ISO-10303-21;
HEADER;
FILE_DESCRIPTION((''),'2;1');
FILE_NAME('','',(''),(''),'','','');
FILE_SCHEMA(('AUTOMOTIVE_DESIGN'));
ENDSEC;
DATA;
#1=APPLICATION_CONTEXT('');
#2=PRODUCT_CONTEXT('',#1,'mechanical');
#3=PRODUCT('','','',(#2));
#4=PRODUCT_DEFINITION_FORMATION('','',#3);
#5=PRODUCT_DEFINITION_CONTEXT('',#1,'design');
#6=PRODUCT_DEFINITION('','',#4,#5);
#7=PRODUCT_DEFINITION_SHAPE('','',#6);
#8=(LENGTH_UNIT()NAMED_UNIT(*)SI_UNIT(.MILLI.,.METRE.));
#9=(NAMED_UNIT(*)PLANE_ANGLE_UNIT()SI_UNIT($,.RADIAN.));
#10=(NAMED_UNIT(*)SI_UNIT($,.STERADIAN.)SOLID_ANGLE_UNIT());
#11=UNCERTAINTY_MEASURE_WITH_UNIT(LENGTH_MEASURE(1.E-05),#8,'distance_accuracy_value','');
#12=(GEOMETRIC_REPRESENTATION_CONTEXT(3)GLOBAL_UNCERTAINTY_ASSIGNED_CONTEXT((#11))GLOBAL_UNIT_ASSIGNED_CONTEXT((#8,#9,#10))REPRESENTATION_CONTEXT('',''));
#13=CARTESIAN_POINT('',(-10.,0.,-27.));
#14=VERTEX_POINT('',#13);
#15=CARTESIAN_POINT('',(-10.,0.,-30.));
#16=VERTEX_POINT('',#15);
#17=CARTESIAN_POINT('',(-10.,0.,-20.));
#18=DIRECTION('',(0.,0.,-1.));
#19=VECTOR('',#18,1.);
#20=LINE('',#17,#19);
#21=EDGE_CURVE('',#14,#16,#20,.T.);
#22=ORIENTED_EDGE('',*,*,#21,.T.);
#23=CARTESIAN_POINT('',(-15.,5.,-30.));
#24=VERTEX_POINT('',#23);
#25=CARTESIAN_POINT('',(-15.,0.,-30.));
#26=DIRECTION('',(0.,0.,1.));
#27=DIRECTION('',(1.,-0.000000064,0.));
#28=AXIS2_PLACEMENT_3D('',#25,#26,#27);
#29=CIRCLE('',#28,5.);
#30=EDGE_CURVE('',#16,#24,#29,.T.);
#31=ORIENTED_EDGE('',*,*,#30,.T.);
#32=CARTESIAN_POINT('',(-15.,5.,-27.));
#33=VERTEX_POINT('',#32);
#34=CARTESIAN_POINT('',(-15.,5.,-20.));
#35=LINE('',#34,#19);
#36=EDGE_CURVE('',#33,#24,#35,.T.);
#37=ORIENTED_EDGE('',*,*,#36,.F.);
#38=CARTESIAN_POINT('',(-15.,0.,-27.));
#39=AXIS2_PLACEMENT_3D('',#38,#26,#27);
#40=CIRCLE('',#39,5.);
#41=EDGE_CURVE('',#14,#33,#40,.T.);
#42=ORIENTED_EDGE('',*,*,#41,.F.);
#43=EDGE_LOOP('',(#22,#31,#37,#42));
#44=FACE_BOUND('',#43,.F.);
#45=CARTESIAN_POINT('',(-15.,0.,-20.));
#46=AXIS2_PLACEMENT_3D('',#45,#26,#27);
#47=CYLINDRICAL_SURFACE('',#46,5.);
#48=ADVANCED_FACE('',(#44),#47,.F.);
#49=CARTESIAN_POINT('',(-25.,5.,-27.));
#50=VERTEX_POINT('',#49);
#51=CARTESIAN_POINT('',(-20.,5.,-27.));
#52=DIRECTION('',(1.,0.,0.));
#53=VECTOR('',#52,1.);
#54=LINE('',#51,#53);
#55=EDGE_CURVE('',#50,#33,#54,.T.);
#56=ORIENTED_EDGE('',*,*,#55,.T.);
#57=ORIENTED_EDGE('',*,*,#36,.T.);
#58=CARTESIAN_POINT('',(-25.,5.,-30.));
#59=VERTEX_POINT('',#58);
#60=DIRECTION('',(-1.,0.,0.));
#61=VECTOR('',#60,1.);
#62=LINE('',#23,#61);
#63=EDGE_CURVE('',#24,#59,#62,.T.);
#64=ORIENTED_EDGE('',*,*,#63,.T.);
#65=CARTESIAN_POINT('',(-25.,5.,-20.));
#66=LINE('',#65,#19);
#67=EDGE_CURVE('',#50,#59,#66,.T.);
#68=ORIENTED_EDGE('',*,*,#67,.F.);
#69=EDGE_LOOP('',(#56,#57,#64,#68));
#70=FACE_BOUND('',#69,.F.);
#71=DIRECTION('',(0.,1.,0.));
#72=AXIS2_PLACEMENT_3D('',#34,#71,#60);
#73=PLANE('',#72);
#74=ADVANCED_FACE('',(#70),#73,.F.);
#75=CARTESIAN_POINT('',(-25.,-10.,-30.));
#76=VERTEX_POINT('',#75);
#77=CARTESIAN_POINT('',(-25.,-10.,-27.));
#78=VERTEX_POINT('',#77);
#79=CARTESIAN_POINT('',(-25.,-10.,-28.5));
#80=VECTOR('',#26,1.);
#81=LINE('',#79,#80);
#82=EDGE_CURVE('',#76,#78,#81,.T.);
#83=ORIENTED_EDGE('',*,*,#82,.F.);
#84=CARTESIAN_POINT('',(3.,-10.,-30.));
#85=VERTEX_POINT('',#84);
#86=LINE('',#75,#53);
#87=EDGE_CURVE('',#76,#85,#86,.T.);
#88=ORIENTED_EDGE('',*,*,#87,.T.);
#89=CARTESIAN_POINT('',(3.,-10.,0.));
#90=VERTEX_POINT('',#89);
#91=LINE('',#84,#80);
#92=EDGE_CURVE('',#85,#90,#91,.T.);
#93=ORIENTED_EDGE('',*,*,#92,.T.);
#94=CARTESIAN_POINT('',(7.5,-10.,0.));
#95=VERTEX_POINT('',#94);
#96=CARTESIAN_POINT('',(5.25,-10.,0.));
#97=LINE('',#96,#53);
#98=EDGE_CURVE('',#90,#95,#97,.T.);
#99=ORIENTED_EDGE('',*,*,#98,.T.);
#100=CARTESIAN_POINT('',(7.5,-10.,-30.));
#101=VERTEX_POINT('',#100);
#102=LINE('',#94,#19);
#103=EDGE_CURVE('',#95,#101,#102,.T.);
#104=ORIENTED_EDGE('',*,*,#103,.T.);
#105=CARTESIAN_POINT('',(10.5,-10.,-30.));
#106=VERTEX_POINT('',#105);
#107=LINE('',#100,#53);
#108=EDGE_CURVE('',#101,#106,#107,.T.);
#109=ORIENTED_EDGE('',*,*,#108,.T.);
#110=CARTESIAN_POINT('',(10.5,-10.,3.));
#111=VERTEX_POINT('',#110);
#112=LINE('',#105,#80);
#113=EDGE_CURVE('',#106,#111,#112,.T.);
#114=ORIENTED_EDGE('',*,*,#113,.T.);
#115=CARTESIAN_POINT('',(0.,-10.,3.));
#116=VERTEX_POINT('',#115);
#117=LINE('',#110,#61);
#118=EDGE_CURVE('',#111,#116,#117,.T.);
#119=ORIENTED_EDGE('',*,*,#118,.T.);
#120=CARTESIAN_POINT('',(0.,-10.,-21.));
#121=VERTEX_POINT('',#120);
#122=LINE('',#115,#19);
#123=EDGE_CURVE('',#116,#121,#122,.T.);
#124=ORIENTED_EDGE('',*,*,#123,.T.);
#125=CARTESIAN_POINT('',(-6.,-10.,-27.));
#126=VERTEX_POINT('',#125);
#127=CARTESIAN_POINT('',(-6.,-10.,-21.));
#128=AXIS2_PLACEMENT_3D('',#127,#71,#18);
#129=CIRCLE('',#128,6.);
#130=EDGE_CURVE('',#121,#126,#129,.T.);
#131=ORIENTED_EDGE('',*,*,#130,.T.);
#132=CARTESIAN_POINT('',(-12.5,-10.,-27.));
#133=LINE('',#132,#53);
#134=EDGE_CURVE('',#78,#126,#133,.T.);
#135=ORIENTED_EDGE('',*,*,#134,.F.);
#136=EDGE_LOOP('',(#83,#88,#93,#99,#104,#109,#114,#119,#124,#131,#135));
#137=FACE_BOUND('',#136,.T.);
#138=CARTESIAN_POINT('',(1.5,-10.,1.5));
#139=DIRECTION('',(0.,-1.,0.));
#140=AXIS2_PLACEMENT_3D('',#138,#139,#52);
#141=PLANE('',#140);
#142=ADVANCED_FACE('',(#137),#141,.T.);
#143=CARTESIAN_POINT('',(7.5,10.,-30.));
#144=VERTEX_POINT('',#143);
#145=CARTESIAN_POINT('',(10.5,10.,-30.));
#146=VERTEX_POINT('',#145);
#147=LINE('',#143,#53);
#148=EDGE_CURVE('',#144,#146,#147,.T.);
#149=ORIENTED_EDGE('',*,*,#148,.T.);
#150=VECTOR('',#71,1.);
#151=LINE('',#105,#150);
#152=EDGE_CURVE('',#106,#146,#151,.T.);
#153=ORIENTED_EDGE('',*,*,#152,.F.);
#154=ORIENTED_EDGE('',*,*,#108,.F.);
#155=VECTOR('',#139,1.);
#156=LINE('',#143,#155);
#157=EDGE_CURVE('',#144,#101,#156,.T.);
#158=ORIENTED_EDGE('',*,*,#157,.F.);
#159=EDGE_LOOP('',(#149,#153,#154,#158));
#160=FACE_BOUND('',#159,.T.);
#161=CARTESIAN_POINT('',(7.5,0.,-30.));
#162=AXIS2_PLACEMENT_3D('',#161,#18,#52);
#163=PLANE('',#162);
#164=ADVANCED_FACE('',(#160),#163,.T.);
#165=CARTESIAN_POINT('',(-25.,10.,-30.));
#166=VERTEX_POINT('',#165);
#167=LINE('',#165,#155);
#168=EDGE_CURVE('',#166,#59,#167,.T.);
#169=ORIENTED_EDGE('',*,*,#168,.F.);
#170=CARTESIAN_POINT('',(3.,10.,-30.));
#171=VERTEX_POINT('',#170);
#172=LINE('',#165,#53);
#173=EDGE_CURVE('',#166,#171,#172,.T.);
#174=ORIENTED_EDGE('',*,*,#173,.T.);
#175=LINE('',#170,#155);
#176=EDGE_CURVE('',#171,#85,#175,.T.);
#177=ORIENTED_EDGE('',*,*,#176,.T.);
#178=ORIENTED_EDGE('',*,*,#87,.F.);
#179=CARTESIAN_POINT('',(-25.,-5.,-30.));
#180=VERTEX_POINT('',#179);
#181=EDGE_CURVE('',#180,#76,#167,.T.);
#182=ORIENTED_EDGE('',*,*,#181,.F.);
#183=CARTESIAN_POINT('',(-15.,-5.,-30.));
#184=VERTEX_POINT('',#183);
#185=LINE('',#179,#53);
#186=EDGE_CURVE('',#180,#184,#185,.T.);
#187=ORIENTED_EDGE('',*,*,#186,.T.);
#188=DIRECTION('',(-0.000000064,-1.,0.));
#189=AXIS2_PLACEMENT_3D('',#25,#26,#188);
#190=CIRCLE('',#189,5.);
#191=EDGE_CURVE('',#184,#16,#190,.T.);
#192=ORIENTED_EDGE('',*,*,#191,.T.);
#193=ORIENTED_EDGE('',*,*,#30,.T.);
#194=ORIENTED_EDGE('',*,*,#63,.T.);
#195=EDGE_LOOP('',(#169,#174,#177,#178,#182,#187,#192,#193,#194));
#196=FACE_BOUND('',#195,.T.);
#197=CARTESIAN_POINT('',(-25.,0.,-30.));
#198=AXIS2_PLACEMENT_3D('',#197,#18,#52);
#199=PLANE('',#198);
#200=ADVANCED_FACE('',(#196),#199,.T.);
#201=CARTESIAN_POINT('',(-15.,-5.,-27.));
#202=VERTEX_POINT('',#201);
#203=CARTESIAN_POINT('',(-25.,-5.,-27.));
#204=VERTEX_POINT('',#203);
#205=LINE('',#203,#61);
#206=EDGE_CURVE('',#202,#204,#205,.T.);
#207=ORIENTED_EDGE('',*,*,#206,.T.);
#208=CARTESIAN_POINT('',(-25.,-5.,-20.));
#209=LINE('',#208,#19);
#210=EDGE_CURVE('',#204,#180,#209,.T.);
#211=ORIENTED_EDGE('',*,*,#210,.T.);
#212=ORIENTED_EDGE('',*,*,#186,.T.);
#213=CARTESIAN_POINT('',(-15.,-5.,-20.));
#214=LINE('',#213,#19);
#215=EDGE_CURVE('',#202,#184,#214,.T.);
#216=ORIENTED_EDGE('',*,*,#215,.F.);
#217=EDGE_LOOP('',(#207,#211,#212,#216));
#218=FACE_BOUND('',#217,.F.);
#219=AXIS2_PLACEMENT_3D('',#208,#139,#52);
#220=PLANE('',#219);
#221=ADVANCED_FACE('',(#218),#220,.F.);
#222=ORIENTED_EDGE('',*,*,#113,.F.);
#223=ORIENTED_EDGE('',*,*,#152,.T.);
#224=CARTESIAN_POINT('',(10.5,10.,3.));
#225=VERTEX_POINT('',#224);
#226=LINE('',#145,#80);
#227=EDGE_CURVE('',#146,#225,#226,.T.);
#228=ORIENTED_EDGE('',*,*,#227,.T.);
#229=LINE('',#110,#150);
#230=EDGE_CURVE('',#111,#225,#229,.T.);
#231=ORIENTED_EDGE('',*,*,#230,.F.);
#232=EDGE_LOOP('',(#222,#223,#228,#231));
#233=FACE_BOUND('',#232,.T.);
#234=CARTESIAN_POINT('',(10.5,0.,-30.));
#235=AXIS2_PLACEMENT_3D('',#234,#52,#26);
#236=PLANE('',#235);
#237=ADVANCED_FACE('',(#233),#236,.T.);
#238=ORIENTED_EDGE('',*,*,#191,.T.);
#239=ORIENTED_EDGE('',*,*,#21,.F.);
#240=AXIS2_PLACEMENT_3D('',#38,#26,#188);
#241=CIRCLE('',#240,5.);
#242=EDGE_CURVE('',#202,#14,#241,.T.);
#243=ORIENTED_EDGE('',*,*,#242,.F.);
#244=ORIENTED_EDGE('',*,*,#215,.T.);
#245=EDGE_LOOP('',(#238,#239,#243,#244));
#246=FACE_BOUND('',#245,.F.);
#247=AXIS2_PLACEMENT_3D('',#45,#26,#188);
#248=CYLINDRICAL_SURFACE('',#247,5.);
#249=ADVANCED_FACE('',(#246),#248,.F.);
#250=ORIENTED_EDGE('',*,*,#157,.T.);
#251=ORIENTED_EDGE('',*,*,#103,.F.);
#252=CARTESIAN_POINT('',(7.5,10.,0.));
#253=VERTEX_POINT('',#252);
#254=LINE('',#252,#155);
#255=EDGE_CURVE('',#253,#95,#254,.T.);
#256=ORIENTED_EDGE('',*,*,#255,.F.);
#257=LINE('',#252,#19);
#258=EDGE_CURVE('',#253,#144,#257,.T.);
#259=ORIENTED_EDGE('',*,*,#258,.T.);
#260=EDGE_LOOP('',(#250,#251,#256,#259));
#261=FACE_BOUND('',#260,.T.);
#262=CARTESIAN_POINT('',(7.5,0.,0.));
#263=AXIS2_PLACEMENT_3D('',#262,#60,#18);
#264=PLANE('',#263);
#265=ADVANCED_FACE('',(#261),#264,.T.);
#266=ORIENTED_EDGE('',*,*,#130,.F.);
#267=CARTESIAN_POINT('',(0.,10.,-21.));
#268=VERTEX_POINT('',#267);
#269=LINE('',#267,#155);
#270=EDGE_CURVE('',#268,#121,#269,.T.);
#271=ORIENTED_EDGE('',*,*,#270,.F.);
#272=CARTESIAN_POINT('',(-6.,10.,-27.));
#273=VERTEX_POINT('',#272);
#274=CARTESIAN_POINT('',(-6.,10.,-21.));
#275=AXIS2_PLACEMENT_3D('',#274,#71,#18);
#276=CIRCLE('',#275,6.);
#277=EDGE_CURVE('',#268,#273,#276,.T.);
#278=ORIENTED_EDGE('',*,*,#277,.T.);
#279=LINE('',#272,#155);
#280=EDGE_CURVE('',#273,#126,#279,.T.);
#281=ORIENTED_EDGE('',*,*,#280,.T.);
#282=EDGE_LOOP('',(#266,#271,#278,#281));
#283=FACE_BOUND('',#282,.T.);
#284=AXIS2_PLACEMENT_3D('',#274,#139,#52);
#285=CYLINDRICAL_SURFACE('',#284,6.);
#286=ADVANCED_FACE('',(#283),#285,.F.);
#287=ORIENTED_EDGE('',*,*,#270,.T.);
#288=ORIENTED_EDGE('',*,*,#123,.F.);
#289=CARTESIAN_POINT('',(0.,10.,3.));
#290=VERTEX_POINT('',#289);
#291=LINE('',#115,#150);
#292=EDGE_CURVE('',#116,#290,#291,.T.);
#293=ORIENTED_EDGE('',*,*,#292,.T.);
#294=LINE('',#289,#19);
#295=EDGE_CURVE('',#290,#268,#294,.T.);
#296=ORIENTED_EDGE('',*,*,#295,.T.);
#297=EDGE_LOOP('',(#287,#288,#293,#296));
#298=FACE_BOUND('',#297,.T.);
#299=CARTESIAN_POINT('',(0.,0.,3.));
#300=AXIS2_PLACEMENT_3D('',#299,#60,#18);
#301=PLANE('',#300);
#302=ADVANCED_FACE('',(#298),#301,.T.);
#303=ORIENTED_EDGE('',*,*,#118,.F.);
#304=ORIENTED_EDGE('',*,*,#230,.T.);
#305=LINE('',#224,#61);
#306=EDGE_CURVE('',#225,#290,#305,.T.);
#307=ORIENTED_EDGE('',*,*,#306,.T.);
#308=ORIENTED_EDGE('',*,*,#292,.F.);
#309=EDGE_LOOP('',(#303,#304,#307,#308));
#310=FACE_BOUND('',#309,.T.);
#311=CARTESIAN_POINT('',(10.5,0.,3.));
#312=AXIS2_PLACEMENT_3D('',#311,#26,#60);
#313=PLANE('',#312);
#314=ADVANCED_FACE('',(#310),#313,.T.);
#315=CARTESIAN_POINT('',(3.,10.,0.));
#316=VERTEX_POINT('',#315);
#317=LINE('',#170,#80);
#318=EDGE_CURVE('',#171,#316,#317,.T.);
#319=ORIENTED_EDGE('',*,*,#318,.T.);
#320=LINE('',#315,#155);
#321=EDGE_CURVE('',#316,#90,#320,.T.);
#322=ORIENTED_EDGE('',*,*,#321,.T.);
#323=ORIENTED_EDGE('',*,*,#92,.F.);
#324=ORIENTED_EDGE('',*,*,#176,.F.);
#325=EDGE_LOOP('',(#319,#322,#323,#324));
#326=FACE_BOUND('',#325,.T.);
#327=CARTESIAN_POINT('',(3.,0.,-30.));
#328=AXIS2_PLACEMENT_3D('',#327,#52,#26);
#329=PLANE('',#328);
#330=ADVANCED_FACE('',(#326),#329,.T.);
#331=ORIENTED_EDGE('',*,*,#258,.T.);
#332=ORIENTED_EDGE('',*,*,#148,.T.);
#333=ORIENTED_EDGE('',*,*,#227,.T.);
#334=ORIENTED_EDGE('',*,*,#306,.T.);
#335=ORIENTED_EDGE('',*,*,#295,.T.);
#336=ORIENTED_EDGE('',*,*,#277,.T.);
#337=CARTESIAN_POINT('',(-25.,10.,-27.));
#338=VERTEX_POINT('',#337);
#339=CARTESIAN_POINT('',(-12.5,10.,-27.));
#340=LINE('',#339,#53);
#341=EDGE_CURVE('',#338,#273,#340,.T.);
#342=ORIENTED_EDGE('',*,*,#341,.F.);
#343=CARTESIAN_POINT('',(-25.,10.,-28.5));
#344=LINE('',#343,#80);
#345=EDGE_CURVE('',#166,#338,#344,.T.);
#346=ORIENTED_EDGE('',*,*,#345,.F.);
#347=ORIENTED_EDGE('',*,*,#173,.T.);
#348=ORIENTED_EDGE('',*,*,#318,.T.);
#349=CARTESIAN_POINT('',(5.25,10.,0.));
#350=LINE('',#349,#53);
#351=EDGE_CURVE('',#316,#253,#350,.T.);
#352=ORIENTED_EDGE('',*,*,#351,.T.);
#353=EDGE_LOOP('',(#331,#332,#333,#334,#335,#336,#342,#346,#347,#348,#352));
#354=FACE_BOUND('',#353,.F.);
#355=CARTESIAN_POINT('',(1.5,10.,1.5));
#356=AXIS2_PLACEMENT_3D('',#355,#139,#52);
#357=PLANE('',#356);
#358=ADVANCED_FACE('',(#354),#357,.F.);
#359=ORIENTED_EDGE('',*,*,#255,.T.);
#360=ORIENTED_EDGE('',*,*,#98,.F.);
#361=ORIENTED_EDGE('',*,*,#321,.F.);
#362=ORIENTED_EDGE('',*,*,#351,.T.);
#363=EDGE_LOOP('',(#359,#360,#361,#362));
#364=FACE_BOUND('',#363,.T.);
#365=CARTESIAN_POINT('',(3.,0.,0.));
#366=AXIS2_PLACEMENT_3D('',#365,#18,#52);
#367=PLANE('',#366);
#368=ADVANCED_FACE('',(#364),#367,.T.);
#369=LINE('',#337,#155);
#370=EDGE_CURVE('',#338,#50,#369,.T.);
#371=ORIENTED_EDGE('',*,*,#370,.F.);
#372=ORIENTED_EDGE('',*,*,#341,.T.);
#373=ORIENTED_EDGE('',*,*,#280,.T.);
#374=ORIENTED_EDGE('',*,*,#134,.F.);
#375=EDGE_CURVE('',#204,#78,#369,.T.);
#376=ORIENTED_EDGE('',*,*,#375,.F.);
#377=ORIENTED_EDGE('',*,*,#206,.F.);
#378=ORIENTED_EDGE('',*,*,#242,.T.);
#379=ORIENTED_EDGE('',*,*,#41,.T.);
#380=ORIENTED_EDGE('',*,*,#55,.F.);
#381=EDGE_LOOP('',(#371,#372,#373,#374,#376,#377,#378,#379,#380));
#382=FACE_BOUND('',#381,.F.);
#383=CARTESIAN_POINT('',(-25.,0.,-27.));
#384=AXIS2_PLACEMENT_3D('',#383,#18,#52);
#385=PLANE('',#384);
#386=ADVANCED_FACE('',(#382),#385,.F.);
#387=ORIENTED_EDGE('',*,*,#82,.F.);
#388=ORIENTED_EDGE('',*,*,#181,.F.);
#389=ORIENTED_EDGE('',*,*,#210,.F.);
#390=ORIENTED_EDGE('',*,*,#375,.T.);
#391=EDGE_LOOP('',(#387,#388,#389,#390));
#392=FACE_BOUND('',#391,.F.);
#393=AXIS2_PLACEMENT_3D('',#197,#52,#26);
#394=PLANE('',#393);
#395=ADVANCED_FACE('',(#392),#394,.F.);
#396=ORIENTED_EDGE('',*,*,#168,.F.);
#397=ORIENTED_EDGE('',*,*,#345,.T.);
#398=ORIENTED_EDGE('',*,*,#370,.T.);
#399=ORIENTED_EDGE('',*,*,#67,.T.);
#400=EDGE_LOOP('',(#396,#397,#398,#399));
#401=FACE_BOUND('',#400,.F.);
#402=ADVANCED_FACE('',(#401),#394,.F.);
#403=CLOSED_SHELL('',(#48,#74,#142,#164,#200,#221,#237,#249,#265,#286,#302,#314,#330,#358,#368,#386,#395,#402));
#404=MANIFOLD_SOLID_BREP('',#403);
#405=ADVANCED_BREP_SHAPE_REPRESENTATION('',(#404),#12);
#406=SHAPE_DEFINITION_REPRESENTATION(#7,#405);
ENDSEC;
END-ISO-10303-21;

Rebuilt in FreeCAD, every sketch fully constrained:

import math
import FreeCAD as App
import Part
import Sketcher
from FreeCAD import Vector
Q = App.Units.Quantity


def edges_at(feature, points):
    """Names of the edges that pass closest to the given points."""
    edges = feature.Shape.Edges
    near = lambda p: min(range(len(edges)), key=lambda i: edges[i].distToShape(Part.Vertex(*p))[0])
    return sorted({f"Edge{near(p) + 1}" for p in points})

doc = App.newDocument("Part")
body = doc.addObject("PartDesign::Body", "Body")

# Sketch on XZ plane
sketch1 = body.newObject("Sketcher::SketchObject", "Sketch")
sketch1.AttachmentSupport = (doc.getObject("XZ_Plane"), [""])
sketch1.MapMode = "FlatFace"
sketch1.addGeometry([
    Part.LineSegment(Vector(0, 3, 0), Vector(0, -27, 0)),  # 0
    Part.LineSegment(Vector(0, -27, 0), Vector(-25, -27, 0)),  # 1
    Part.LineSegment(Vector(-25, -27, 0), Vector(-25, -30, 0)),  # 2
    Part.LineSegment(Vector(-25, -30, 0), Vector(3, -30, 0)),  # 3
    Part.LineSegment(Vector(3, -30, 0), Vector(3, 0, 0)),  # 4
    Part.LineSegment(Vector(3, 0, 0), Vector(7.5, 0, 0)),  # 5
    Part.LineSegment(Vector(7.5, 0, 0), Vector(7.5, -30, 0)),  # 6
    Part.LineSegment(Vector(7.5, -30, 0), Vector(10.5, -30, 0)),  # 7
    Part.LineSegment(Vector(10.5, -30, 0), Vector(10.5, 3, 0)),  # 8
    Part.LineSegment(Vector(10.5, 3, 0), Vector(0, 3, 0)),  # 9
], False)
sketch1.addConstraint([
    Sketcher.Constraint("Coincident", 0, 2, 1, 1),
    Sketcher.Constraint("Coincident", 1, 2, 2, 1),
    Sketcher.Constraint("Coincident", 2, 2, 3, 1),
    Sketcher.Constraint("Coincident", 3, 2, 4, 1),
    Sketcher.Constraint("Coincident", 4, 2, 5, 1),
    Sketcher.Constraint("Coincident", 5, 2, 6, 1),
    Sketcher.Constraint("Coincident", 6, 2, 7, 1),
    Sketcher.Constraint("Coincident", 7, 2, 8, 1),
    Sketcher.Constraint("Coincident", 8, 2, 9, 1),
    Sketcher.Constraint("Coincident", 9, 2, 0, 1),
    Sketcher.Constraint("Vertical", 0),
    Sketcher.Constraint("Horizontal", 1),
    Sketcher.Constraint("Vertical", 2),
    Sketcher.Constraint("Horizontal", 3),
    Sketcher.Constraint("Vertical", 4),
    Sketcher.Constraint("Horizontal", 5),
    Sketcher.Constraint("Vertical", 6),
    Sketcher.Constraint("Horizontal", 7),
    Sketcher.Constraint("Vertical", 8),
    Sketcher.Constraint("Horizontal", 9),
    Sketcher.Constraint("PointOnObject", 0, 2, -2),
    Sketcher.Constraint("PointOnObject", 4, 2, -1),
    Sketcher.Constraint("Horizontal", 3, 2, 6, 2),
    Sketcher.Constraint("Equal", 7, 2),
    Sketcher.Constraint("Equal", 0, 4),
    Sketcher.Constraint("DistanceX", 1, 2, 1, 1, Q("25 mm")),
    Sketcher.Constraint("DistanceX", 3, 1, 3, 2, Q("28 mm")),
    Sketcher.Constraint("DistanceX", 7, 1, 7, 2, Q("3 mm")),
    Sketcher.Constraint("DistanceY", 0, 2, 0, 1, Q("30 mm")),
    Sketcher.Constraint("DistanceX", 5, 1, 5, 2, Q("4.5 mm")),
])
pad1 = body.newObject("PartDesign::Pad", "Pad")
pad1.Profile = sketch1
pad1.Type = "TwoLengths"
pad1.Length = 10
pad1.Length2 = 10

# Sketch on XY plane
sketch2 = body.newObject("Sketcher::SketchObject", "Sketch001")
sketch2.AttachmentSupport = (doc.getObject("XY_Plane"), [""])
sketch2.MapMode = "FlatFace"
sketch2.AttachmentOffset = App.Placement(Vector(0, 0, -20), App.Rotation())
sketch2.addGeometry([
    Part.ArcOfCircle(Part.Circle(Vector(-15, 0, 0), Vector(0, 0, 1), 5), math.radians(-90), math.radians(0)),  # 0
    Part.ArcOfCircle(Part.Circle(Vector(-15, 0, 0), Vector(0, 0, 1), 5), math.radians(0), math.radians(90)),  # 1
    Part.LineSegment(Vector(-15, 5, 0), Vector(-25, 5, 0)),  # 2
    Part.LineSegment(Vector(-25, 5, 0), Vector(-25, -5, 0)),  # 3
    Part.LineSegment(Vector(-25, -5, 0), Vector(-15, -5, 0)),  # 4
], False)
sketch2.addConstraint([
    Sketcher.Constraint("Tangent", 0, 2, 1, 1),
    Sketcher.Constraint("Tangent", 1, 2, 2, 1),
    Sketcher.Constraint("Coincident", 2, 2, 3, 1),
    Sketcher.Constraint("Coincident", 3, 2, 4, 1),
    Sketcher.Constraint("Tangent", 4, 2, 0, 1),
    Sketcher.Constraint("Horizontal", 2),
    Sketcher.Constraint("Vertical", 3),
    Sketcher.Constraint("Horizontal", 4),
    Sketcher.Constraint("Equal", 0, 1),
    Sketcher.Constraint("PointOnObject", 0, 3, -1),
    Sketcher.Constraint("PointOnObject", 0, 2, -1),
    Sketcher.Constraint("Equal", 4, 3),
    Sketcher.Constraint("Radius", 0, Q("5 mm")),
    Sketcher.Constraint("DistanceX", 0, 3, -1, 1, Q("15 mm")),
])
pocket1 = body.newObject("PartDesign::Pocket", "Pocket")
pocket1.Profile = sketch2
pocket1.Type = "ThroughAll"
pocket1.Midplane = True
doc.recompute()

fillet = body.newObject("PartDesign::Fillet", "Fillet")
fillet.Base = (pocket1, edges_at(pocket1, [(0, 0, -27)]))
fillet.Radius = 6

doc.recompute()
